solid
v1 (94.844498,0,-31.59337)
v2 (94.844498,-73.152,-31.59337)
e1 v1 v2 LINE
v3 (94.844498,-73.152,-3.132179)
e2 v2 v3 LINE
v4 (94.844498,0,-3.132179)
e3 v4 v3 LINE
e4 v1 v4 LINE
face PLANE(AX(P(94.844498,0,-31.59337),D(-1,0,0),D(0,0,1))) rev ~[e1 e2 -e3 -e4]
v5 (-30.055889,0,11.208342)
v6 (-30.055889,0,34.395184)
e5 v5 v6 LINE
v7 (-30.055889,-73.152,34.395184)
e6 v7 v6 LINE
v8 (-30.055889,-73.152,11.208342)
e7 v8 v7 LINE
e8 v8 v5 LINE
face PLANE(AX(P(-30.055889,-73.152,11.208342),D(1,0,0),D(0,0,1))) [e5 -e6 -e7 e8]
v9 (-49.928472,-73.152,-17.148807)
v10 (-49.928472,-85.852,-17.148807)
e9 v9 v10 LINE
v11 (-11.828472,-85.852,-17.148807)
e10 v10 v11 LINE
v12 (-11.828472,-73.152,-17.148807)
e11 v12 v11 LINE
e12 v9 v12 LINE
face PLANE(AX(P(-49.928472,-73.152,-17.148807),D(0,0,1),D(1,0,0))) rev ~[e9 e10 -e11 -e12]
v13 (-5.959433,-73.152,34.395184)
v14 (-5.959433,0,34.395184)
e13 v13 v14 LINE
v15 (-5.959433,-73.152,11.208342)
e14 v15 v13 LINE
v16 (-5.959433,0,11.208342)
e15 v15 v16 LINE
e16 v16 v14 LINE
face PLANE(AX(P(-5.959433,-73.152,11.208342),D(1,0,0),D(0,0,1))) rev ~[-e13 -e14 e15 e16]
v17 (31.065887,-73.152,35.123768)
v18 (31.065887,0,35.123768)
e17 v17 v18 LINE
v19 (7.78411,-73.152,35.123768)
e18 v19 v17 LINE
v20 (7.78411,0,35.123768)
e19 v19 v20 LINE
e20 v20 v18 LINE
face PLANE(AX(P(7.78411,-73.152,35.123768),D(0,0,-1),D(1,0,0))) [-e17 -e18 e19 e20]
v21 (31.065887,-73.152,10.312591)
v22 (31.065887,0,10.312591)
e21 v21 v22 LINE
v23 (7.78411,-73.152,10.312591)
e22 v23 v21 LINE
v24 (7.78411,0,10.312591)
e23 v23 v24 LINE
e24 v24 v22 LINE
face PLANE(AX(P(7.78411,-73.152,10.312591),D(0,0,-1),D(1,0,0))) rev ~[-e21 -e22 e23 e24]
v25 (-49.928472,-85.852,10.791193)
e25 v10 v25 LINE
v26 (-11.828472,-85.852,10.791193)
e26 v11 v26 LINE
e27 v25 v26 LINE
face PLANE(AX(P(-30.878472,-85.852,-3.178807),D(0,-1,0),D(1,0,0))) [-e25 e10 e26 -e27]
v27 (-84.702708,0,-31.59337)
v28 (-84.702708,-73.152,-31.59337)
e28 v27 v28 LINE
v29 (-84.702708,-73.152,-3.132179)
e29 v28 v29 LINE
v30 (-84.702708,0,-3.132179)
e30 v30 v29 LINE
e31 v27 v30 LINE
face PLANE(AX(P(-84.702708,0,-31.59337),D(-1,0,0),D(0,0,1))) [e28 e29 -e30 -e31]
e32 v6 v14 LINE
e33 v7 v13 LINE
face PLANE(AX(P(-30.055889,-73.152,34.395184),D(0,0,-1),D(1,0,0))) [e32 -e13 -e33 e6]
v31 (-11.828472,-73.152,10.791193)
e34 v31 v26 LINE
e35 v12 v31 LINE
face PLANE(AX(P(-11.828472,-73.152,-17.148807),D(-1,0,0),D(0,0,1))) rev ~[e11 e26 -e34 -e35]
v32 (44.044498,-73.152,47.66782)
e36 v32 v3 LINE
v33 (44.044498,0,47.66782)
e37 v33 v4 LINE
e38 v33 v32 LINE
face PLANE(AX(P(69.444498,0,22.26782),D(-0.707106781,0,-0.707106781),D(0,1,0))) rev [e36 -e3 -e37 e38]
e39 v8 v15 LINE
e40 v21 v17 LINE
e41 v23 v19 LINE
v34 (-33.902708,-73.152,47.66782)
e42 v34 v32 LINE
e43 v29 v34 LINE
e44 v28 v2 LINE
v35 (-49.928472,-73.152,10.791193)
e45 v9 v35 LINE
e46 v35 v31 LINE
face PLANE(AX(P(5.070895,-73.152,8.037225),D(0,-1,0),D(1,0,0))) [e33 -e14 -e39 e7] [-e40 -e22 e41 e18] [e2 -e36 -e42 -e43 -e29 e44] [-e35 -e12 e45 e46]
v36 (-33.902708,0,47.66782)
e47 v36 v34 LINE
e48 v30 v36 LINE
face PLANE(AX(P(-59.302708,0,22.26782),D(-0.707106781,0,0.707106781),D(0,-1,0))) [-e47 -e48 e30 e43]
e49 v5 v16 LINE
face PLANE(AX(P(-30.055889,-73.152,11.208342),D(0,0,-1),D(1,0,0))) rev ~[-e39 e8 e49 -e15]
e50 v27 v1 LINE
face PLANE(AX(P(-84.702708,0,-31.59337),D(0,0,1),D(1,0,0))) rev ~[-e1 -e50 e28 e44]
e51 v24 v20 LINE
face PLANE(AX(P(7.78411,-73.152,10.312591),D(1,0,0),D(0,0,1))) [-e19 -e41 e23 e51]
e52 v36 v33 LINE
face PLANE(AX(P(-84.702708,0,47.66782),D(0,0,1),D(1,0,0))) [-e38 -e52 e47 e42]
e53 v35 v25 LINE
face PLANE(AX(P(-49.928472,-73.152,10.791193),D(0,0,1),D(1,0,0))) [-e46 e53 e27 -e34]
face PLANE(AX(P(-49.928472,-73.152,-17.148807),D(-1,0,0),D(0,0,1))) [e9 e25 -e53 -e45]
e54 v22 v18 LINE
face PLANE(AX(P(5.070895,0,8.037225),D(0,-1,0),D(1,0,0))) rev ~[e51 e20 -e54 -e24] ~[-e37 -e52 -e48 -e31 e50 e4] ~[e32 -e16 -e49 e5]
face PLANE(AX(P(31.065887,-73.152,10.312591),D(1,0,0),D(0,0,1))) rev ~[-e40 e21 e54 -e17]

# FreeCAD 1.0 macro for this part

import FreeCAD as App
import Part
import Sketcher
Q = App.Units.Quantity


def edges_at(feature, points):
    """Names of the edges that pass closest to the given points."""
    edges = feature.Shape.Edges
    near = lambda p: min(range(len(edges)), key=lambda i: edges[i].distToShape(Part.Vertex(*p))[0])
    return sorted({f"Edge{near(p) + 1}" for p in points})

doc = App.newDocument("Part")
body = doc.addObject("PartDesign::Body", "Body")

# Sketch on XZ plane
sketch1 = doc.addObject("Sketcher::SketchObject", "Sketch")
body.addObject(sketch1)
sketch1.AttachmentSupport = (doc.XZ_Plane, [""])
sketch1.MapMode = "FlatFace"
sketch1.addGeometry(Part.LineSegment(App.Vector(-85, 48, 0), App.Vector(-85, -32, 0)), False)
sketch1.addGeometry(Part.LineSegment(App.Vector(-85, -32, 0), App.Vector(95, -32, 0)), False)
sketch1.addGeometry(Part.LineSegment(App.Vector(95, -32, 0), App.Vector(95, 48, 0)), False)
sketch1.addGeometry(Part.LineSegment(App.Vector(95, 48, 0), App.Vector(-85, 48, 0)), False)
sketch1.addConstraint(Sketcher.Constraint("Coincident", 0, 2, 1, 1))
sketch1.addConstraint(Sketcher.Constraint("Coincident", 1, 2, 2, 1))
sketch1.addConstraint(Sketcher.Constraint("Coincident", 2, 2, 3, 1))
sketch1.addConstraint(Sketcher.Constraint("Coincident", 3, 2, 0, 1))
sketch1.addConstraint(Sketcher.Constraint("Vertical", 0))
sketch1.addConstraint(Sketcher.Constraint("Horizontal", 1))
sketch1.addConstraint(Sketcher.Constraint("Vertical", 2))
sketch1.addConstraint(Sketcher.Constraint("Horizontal", 3))
sketch1.addConstraint(Sketcher.Constraint("DistanceY", 0, 2, 0, 1, Q("79.261191 mm")))
sketch1.addConstraint(Sketcher.Constraint("DistanceX", -1, 1, 1, 2, Q("94.844498 mm")))
sketch1.addConstraint(Sketcher.Constraint("DistanceX", 1, 1, 1, 2, Q("179.547206 mm")))
sketch1.addConstraint(Sketcher.Constraint("DistanceY", 0, 2, -1, 1, Q("31.59337 mm")))
pad1 = doc.addObject("PartDesign::Pad", "Pad")
body.addObject(pad1)
pad1.Profile = sketch1
pad1.Length = Q("2.88 in")
doc.recompute()

chamfer = doc.addObject("PartDesign::Chamfer", "Chamfer")
body.addObject(chamfer)
chamfer.Base = (pad1, edges_at(pad1, [(-84.703, -36.576, 47.668)]))
chamfer.Size = Q("2 in")

# Sketch on XZ plane
sketch2 = doc.addObject("Sketcher::SketchObject", "Sketch001")
body.addObject(sketch2)
sketch2.AttachmentSupport = (doc.XZ_Plane, [""])
sketch2.MapMode = "FlatFace"
sketch2.AttachmentOffset = App.Placement(App.Vector(0, 0, 2.88 * 25.4), App.Rotation())
sketch2.addGeometry(Part.LineSegment(App.Vector(-30, 34, 0), App.Vector(-30, 11, 0)), False)
sketch2.addGeometry(Part.LineSegment(App.Vector(-30, 11, 0), App.Vector(-6, 11, 0)), False)
sketch2.addGeometry(Part.LineSegment(App.Vector(-6, 11, 0), App.Vector(-6, 34, 0)), False)
sketch2.addGeometry(Part.LineSegment(App.Vector(-6, 34, 0), App.Vector(-30, 34, 0)), False)
sketch2.addConstraint(Sketcher.Constraint("Coincident", 0, 2, 1, 1))
sketch2.addConstraint(Sketcher.Constraint("Coincident", 1, 2, 2, 1))
sketch2.addConstraint(Sketcher.Constraint("Coincident", 2, 2, 3, 1))
sketch2.addConstraint(Sketcher.Constraint("Coincident", 3, 2, 0, 1))
sketch2.addConstraint(Sketcher.Constraint("Vertical", 0))
sketch2.addConstraint(Sketcher.Constraint("Horizontal", 1))
sketch2.addConstraint(Sketcher.Constraint("Vertical", 2))
sketch2.addConstraint(Sketcher.Constraint("Horizontal", 3))
sketch2.addConstraint(Sketcher.Constraint("DistanceY", 0, 2, 0, 1, Q("23.186842 mm")))
sketch2.addConstraint(Sketcher.Constraint("DistanceX", 1, 1, 1, 2, Q("24.096457 mm")))
sketch2.addConstraint(Sketcher.Constraint("DistanceX", 0, 2, -1, 1, Q("30.055889 mm")))
sketch2.addConstraint(Sketcher.Constraint("DistanceY", -1, 1, 0, 2, Q("11.208342 mm")))
pocket1 = doc.addObject("PartDesign::Pocket", "Pocket")
body.addObject(pocket1)
pocket1.Profile = sketch2
pocket1.Length = Q("11.26 in")

# Sketch on XZ plane
sketch3 = doc.addObject("Sketcher::SketchObject", "Sketch002")
body.addObject(sketch3)
sketch3.AttachmentSupport = (doc.XZ_Plane, [""])
sketch3.MapMode = "FlatFace"
sketch3.AttachmentOffset = App.Placement(App.Vector(0, 0, 2.88 * 25.4), App.Rotation())
sketch3.addGeometry(Part.LineSegment(App.Vector(8, 35, 0), App.Vector(8, 10, 0)), False)
sketch3.addGeometry(Part.LineSegment(App.Vector(8, 10, 0), App.Vector(31, 10, 0)), False)
sketch3.addGeometry(Part.LineSegment(App.Vector(31, 10, 0), App.Vector(31, 35, 0)), False)
sketch3.addGeometry(Part.LineSegment(App.Vector(31, 35, 0), App.Vector(8, 35, 0)), False)
sketch3.addConstraint(Sketcher.Constraint("Coincident", 0, 2, 1, 1))
sketch3.addConstraint(Sketcher.Constraint("Coincident", 1, 2, 2, 1))
sketch3.addConstraint(Sketcher.Constraint("Coincident", 2, 2, 3, 1))
sketch3.addConstraint(Sketcher.Constraint("Coincident", 3, 2, 0, 1))
sketch3.addConstraint(Sketcher.Constraint("Vertical", 0))
sketch3.addConstraint(Sketcher.Constraint("Horizontal", 1))
sketch3.addConstraint(Sketcher.Constraint("Vertical", 2))
sketch3.addConstraint(Sketcher.Constraint("Horizontal", 3))
sketch3.addConstraint(Sketcher.Constraint("DistanceX", 1, 1, 1, 2, Q("23.281777 mm")))
sketch3.addConstraint(Sketcher.Constraint("DistanceY", 0, 2, 0, 1, Q("24.811177 mm")))
sketch3.addConstraint(Sketcher.Constraint("DistanceX", -1, 1, 0, 2, Q("7.78411 mm")))
sketch3.addConstraint(Sketcher.Constraint("DistanceY", -1, 1, 0, 2, Q("10.312591 mm")))
pocket2 = doc.addObject("PartDesign::Pocket", "Pocket001")
body.addObject(pocket2)
pocket2.Profile = sketch3
pocket2.Length = Q("8.73 in")
doc.recompute()

chamfer2 = doc.addObject("PartDesign::Chamfer", "Chamfer001")
body.addObject(chamfer2)
chamfer2.Base = (pocket2, edges_at(pocket2, [(94.844, -36.576, 47.668)]))
chamfer2.Size = Q("2 in")

# Sketch on XZ plane
sketch4 = doc.addObject("Sketcher::SketchObject", "Sketch003")
body.addObject(sketch4)
sketch4.AttachmentSupport = (doc.XZ_Plane, [""])
sketch4.MapMode = "FlatFace"
sketch4.AttachmentOffset = App.Placement(App.Vector(0, 0, 2.88 * 25.4), App.Rotation())
sketch4.addGeometry(Part.LineSegment(App.Vector(-50, 11, 0), App.Vector(-50, -17, 0)), False)
sketch4.addGeometry(Part.LineSegment(App.Vector(-50, -17, 0), App.Vector(-12, -17, 0)), False)
sketch4.addGeometry(Part.LineSegment(App.Vector(-12, -17, 0), App.Vector(-12, 11, 0)), False)
sketch4.addGeometry(Part.LineSegment(App.Vector(-12, 11, 0), App.Vector(-50, 11, 0)), False)
sketch4.addConstraint(Sketcher.Constraint("Coincident", 0, 2, 1, 1))
sketch4.addConstraint(Sketcher.Constraint("Coincident", 1, 2, 2, 1))
sketch4.addConstraint(Sketcher.Constraint("Coincident", 2, 2, 3, 1))
sketch4.addConstraint(Sketcher.Constraint("Coincident", 3, 2, 0, 1))
sketch4.addConstraint(Sketcher.Constraint("Vertical", 0))
sketch4.addConstraint(Sketcher.Constraint("Horizontal", 1))
sketch4.addConstraint(Sketcher.Constraint("Vertical", 2))
sketch4.addConstraint(Sketcher.Constraint("Horizontal", 3))
sketch4.addConstraint(Sketcher.Constraint("DistanceX", 1, 1, 1, 2, Q("1.5 in")))
sketch4.addConstraint(Sketcher.Constraint("DistanceY", 0, 2, 0, 1, Q("1.1 in")))
sketch4.addConstraint(Sketcher.Constraint("DistanceX", 0, 2, -1, 1, Q("49.928472 mm")))
sketch4.addConstraint(Sketcher.Constraint("DistanceY", 0, 2, -1, 1, Q("17.148807 mm")))
pad2 = doc.addObject("PartDesign::Pad", "Pad001")
body.addObject(pad2)
pad2.Profile = sketch4
pad2.Length = Q("0.5 in")

doc.recompute()
